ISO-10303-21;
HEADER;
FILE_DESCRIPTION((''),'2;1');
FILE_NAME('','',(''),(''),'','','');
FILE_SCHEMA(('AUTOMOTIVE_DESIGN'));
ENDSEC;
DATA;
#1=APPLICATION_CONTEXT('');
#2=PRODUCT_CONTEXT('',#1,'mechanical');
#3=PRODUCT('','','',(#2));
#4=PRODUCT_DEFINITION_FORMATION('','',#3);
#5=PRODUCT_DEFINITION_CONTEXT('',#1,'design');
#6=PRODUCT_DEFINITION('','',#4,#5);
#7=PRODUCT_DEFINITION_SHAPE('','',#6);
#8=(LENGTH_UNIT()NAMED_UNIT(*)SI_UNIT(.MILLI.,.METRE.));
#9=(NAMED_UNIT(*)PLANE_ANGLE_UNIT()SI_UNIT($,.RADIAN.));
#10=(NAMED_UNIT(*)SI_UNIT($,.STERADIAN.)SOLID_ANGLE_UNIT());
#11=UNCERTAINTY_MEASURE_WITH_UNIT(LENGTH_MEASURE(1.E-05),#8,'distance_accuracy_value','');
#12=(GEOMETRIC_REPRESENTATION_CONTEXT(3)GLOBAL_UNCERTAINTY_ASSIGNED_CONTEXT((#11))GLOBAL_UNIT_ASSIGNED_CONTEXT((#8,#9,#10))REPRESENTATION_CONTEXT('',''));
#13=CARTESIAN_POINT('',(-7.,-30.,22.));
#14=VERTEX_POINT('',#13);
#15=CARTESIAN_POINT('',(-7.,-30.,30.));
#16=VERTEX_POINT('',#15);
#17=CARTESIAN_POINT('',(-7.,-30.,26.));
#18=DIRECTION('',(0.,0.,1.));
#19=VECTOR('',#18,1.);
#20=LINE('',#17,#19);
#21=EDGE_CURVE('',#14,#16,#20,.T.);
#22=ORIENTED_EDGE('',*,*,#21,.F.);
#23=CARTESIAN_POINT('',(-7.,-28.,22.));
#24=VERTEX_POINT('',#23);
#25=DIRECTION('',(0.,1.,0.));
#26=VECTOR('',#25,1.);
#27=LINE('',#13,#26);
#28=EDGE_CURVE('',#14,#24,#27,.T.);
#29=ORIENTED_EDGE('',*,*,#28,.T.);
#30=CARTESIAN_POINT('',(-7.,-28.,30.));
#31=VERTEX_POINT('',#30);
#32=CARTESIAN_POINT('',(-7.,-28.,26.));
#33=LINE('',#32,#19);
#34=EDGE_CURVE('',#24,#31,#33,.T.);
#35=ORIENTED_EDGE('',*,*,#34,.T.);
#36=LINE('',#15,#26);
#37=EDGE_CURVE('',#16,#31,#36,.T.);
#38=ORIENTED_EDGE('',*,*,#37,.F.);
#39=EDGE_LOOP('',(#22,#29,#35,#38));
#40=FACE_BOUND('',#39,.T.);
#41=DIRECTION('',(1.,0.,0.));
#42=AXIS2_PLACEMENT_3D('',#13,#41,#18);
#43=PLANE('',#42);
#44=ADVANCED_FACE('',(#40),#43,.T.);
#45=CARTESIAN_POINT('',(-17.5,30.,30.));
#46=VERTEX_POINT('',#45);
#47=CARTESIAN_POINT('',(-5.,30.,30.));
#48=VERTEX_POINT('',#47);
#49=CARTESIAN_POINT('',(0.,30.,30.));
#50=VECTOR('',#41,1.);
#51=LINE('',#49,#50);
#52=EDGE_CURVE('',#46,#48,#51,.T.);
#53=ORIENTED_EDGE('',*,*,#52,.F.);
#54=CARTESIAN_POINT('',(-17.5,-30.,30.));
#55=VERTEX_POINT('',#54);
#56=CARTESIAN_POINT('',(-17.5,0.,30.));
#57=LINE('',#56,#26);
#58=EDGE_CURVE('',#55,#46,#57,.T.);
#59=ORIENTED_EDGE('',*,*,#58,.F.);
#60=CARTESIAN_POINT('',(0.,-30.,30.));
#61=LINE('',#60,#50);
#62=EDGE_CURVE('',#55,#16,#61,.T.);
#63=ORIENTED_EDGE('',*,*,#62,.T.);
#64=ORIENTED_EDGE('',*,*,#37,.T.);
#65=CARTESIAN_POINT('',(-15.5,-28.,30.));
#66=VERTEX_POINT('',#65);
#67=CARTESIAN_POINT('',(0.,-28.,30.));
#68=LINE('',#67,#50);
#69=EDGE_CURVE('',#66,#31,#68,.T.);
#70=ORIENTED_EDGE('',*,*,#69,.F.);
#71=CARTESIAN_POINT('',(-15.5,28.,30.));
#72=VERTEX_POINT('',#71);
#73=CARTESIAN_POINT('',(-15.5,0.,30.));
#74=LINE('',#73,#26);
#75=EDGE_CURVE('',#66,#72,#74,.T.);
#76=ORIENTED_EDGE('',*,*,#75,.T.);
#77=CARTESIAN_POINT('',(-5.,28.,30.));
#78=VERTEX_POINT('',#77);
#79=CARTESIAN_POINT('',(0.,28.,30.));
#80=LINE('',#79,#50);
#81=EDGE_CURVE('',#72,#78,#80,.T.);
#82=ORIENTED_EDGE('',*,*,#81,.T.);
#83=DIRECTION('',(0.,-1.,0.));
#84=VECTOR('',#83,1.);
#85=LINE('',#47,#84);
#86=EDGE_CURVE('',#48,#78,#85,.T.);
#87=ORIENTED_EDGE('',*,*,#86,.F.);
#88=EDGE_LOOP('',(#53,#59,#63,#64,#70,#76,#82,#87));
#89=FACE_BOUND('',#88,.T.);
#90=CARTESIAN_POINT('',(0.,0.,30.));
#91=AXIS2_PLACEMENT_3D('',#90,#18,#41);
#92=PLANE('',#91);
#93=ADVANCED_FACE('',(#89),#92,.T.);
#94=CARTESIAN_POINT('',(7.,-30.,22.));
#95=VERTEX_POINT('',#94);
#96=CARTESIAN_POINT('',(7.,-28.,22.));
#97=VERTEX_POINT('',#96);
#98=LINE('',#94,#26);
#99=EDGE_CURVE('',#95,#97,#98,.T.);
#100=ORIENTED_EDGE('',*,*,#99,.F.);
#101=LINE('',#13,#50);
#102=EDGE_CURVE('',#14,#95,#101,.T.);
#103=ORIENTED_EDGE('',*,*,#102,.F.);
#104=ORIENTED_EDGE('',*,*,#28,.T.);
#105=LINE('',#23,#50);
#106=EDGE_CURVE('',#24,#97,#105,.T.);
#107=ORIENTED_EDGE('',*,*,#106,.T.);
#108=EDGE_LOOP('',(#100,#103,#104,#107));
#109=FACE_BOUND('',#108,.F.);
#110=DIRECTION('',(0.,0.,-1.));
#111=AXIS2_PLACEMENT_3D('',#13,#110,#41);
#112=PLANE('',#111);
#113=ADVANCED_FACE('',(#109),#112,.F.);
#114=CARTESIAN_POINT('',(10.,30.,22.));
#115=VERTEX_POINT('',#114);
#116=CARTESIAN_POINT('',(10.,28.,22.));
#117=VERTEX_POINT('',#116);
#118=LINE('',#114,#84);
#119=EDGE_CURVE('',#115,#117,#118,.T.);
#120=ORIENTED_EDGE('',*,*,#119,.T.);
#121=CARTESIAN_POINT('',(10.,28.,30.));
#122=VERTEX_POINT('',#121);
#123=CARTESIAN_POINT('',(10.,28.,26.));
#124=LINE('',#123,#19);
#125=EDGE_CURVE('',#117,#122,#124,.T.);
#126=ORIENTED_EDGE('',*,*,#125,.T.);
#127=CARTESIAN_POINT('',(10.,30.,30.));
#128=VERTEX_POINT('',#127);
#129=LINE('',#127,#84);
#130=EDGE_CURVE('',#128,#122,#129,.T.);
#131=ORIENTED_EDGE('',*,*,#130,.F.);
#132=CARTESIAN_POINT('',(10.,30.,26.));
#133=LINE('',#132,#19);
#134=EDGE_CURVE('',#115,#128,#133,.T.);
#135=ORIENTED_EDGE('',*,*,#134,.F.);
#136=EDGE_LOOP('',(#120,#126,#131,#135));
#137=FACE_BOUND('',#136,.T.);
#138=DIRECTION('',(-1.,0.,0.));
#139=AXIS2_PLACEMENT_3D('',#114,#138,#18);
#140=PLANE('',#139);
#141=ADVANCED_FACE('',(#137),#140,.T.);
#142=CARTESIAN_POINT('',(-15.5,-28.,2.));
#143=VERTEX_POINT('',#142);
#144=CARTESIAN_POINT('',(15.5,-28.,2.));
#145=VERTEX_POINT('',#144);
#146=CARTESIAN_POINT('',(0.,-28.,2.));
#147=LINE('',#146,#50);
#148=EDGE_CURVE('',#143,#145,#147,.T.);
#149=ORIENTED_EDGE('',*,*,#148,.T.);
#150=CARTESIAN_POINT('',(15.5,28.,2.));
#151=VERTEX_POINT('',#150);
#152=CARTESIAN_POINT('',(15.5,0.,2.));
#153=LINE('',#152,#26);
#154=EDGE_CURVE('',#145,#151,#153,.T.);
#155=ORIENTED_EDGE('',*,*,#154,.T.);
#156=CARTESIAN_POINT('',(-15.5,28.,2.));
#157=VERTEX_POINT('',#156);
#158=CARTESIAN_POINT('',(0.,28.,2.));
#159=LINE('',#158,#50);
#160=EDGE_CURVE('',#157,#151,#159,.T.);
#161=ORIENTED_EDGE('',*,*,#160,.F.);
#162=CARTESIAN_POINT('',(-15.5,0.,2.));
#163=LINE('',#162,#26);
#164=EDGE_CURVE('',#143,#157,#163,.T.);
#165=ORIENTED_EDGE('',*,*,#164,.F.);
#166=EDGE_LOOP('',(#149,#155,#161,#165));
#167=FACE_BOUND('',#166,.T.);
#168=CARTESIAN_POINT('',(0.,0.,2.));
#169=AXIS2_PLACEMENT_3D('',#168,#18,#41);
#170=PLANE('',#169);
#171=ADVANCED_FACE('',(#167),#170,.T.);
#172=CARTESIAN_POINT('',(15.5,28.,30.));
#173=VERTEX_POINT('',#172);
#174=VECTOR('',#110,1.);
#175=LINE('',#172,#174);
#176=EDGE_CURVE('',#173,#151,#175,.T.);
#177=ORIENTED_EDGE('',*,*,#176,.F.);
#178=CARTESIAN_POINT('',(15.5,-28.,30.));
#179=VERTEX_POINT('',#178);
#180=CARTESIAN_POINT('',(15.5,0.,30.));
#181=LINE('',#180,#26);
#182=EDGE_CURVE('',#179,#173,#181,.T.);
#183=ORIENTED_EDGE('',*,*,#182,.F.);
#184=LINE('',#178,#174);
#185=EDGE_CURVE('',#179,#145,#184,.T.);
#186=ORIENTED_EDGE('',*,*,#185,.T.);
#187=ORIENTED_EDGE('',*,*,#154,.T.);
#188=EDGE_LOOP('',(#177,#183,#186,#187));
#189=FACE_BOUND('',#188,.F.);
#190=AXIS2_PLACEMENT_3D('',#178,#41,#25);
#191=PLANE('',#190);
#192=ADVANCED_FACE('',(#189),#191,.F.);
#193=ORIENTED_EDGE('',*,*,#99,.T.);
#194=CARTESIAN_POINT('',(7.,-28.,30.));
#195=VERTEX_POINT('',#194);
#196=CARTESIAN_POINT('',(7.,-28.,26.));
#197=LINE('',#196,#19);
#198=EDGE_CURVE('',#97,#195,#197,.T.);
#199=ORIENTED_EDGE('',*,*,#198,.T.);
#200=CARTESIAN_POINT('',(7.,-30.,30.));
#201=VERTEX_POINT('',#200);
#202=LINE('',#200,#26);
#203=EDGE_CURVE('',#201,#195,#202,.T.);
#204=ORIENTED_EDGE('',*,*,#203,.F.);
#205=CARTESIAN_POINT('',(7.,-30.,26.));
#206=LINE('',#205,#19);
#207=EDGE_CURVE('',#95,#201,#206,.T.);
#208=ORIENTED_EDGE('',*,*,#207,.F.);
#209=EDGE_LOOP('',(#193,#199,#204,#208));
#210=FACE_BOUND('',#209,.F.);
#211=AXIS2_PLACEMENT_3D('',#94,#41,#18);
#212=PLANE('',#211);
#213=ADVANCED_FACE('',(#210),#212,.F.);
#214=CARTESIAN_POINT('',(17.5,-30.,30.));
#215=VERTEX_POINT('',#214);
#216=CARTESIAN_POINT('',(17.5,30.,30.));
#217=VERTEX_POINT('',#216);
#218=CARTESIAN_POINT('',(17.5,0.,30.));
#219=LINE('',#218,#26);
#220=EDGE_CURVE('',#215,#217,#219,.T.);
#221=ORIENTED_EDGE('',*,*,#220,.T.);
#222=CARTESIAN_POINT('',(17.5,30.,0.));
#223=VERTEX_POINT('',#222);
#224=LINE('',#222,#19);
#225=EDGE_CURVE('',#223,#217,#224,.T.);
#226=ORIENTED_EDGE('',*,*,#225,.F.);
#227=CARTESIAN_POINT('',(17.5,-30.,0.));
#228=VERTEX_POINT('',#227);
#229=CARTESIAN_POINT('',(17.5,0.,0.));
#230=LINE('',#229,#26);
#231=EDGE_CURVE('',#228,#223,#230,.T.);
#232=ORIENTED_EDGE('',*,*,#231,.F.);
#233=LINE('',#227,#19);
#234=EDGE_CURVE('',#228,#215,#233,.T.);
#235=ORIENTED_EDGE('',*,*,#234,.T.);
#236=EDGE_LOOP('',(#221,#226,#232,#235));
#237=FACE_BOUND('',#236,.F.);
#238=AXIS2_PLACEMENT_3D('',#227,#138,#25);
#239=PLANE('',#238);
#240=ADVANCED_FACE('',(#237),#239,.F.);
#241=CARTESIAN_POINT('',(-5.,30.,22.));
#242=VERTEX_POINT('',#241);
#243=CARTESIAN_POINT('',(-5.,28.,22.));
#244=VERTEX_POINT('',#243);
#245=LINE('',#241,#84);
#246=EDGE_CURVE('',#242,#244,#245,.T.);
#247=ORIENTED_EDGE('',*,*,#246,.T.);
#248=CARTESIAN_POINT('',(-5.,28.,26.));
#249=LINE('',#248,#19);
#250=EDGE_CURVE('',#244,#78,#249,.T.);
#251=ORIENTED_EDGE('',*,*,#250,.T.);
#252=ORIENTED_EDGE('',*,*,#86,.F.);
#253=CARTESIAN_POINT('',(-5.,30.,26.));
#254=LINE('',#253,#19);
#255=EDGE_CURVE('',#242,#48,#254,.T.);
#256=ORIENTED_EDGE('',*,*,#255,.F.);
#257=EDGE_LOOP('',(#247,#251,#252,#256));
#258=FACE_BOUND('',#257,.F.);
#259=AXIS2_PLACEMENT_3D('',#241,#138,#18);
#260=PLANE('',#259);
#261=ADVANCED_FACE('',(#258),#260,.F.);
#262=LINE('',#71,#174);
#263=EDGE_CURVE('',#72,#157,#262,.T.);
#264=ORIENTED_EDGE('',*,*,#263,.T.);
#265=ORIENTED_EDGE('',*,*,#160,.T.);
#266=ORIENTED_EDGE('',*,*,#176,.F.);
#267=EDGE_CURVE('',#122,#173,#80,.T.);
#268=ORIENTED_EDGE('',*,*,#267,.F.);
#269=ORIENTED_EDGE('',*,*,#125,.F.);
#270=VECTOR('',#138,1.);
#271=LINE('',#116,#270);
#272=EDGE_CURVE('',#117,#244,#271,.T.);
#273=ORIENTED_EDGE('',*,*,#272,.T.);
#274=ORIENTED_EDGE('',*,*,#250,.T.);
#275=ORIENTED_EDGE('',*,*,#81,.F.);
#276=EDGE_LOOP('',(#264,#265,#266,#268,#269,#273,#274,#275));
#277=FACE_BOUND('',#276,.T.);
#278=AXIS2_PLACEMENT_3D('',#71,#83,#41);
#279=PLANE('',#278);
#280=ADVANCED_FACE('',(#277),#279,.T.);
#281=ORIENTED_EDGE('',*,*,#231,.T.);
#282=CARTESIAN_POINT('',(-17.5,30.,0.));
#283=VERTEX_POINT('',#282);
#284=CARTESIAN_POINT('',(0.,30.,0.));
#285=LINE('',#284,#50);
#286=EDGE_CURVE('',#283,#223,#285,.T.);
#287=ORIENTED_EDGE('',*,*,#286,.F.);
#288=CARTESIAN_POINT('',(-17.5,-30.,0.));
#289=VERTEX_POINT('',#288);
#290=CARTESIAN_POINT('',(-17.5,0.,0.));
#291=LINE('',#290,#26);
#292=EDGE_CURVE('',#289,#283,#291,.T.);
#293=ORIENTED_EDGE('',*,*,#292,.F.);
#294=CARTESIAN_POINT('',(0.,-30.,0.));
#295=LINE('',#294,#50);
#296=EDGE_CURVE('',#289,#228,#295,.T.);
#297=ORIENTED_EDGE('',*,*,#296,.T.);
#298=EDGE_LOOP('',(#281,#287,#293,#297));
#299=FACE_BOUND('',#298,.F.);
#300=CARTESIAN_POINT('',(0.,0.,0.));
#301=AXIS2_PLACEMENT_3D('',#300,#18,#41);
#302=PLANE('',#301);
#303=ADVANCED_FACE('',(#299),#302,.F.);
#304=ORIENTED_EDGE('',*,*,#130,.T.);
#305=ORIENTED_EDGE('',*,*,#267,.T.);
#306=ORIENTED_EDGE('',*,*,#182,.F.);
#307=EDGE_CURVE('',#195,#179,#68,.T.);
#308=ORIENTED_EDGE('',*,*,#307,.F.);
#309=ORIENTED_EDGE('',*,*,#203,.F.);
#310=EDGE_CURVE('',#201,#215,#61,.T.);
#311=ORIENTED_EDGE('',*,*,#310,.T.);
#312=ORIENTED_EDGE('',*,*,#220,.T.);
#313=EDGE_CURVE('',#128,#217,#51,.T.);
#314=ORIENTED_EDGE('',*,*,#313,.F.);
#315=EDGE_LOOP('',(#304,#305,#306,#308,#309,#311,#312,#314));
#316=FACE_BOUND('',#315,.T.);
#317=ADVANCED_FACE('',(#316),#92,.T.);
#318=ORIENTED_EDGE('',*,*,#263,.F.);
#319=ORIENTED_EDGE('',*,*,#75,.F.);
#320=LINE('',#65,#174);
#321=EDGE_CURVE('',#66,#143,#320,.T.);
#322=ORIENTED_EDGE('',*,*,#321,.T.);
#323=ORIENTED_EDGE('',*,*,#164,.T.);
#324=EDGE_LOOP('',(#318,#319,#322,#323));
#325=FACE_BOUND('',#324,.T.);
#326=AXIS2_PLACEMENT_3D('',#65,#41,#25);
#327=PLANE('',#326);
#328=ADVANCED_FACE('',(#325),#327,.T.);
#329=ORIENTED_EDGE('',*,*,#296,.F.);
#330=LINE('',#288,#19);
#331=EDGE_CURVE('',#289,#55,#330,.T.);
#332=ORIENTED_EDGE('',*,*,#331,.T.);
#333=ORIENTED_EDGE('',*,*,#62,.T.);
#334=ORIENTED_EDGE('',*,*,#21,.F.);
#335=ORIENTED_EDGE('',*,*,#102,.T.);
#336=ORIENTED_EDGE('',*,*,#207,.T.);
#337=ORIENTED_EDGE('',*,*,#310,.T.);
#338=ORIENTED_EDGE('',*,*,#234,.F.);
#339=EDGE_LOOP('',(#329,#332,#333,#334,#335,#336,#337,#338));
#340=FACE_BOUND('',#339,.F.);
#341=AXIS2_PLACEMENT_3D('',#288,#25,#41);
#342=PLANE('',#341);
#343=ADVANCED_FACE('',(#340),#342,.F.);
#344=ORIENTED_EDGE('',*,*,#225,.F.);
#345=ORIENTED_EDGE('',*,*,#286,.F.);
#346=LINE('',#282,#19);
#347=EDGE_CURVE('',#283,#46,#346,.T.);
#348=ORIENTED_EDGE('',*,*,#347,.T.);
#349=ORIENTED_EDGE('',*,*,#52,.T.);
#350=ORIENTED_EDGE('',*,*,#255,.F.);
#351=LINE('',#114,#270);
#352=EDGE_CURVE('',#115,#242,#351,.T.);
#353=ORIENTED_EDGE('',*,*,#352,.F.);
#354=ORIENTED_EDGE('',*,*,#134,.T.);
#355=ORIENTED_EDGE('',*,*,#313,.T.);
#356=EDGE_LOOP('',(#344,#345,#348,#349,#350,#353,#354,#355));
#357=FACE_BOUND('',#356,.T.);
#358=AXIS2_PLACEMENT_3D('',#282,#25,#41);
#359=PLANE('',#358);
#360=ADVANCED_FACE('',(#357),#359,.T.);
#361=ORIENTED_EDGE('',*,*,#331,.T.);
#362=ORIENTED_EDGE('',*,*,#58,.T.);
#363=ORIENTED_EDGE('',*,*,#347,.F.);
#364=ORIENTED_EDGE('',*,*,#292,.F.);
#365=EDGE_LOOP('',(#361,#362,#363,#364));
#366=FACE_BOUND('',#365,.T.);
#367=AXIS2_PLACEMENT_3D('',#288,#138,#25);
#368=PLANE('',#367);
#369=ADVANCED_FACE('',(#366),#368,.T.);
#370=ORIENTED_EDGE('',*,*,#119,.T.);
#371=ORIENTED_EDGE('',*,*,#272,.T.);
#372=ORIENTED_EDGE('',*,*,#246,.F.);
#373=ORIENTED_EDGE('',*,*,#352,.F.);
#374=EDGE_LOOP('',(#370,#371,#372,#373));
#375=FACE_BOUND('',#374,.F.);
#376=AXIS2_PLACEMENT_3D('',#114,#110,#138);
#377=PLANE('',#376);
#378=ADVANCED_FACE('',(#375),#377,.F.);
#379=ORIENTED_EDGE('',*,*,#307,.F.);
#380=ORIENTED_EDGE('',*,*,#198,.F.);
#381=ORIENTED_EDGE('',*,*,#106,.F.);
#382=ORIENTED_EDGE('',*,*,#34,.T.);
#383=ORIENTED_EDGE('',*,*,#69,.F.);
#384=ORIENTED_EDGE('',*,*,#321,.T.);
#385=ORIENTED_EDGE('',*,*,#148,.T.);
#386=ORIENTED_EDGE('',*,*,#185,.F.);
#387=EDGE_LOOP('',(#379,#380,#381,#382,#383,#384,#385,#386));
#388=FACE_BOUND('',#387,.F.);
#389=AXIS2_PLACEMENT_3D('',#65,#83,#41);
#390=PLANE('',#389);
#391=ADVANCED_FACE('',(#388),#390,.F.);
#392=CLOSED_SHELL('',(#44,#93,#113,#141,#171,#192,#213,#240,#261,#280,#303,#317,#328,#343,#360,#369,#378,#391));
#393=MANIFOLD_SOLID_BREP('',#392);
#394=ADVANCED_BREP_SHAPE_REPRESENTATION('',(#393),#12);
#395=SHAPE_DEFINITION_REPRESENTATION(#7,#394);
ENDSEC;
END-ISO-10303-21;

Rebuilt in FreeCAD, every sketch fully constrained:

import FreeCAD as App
import Part
import Sketcher
from FreeCAD import Vector


def add_polygon(sketch, points):
    """Adds a closed chain of lines whose ends are joined by coincident constraints."""
    first, n = sketch.GeometryCount, len(points)
    for a, b in zip(points, points[1:] + points[:1]):
        sketch.addGeometry(Part.LineSegment(App.Vector(*a, 0), App.Vector(*b, 0)), False)
    for i in range(n):
        sketch.addConstraint(Sketcher.Constraint("Coincident", first + i, 2, first + (i + 1) % n, 1))

doc = App.newDocument("Part")
body = doc.addObject("PartDesign::Body", "Body")

sketch1 = body.newObject("Sketcher::SketchObject", "Sketch")
sketch1.AttachmentSupport = (doc.getObject("XY_Plane"), [""])
sketch1.MapMode = "FlatFace"
add_polygon(sketch1, [(-17.5, 30), (-17.5, -30), (17.5, -30), (17.5, 30)])
sketch1.addConstraint([
    Sketcher.Constraint("Vertical", 0),
    Sketcher.Constraint("Horizontal", 1),
    Sketcher.Constraint("Vertical", 2),
    Sketcher.Constraint("Horizontal", 3),
    Sketcher.Constraint("Symmetric", 0, 2, 2, 2, -1, 1),
    Sketcher.Constraint("DistanceX", 1, 1, 1, 2, 35.0),
    Sketcher.Constraint("DistanceY", 0, 2, 0, 1, 60.0),
])
pad1 = body.newObject("PartDesign::Pad", "Pad")
pad1.Profile = sketch1
pad1.Length = 30

sketch2 = body.newObject("Sketcher::SketchObject", "Sketch001")
sketch2.AttachmentSupport = (doc.getObject("XY_Plane"), [""])
sketch2.MapMode = "FlatFace"
sketch2.AttachmentOffset = App.Placement(Vector(0, 0, 30), App.Rotation())
add_polygon(sketch2, [(-15.5, 28), (-15.5, -28), (15.5, -28), (15.5, 28)])
sketch2.addConstraint([
    Sketcher.Constraint("Vertical", 0),
    Sketcher.Constraint("Horizontal", 1),
    Sketcher.Constraint("Vertical", 2),
    Sketcher.Constraint("Horizontal", 3),
    Sketcher.Constraint("Symmetric", 0, 2, 2, 2, -1, 1),
    Sketcher.Constraint("DistanceX", 1, 1, 1, 2, 31.0),
    Sketcher.Constraint("DistanceY", 0, 2, 0, 1, 56.0),
])
pocket1 = body.newObject("PartDesign::Pocket", "Pocket")
pocket1.Profile = sketch2
pocket1.Length = 28

sketch3 = body.newObject("Sketcher::SketchObject", "Sketch002")
sketch3.AttachmentSupport = (doc.getObject("XZ_Plane"), [""])
sketch3.MapMode = "FlatFace"
sketch3.AttachmentOffset = App.Placement(Vector(0, 0, -30), App.Rotation())
add_polygon(sketch3, [(-5, 22), (-5, 30), (10, 30), (10, 22)])
sketch3.addConstraint([
    Sketcher.Constraint("Vertical", 0),
    Sketcher.Constraint("Horizontal", 1),
    Sketcher.Constraint("Vertical", 2),
    Sketcher.Constraint("Horizontal", 3),
    Sketcher.Constraint("DistanceX", 1, 1, 1, 2, 15.0),
    Sketcher.Constraint("DistanceY", 0, 1, 0, 2, 8.0),
    Sketcher.Constraint("DistanceX", 0, 2, -1, 1, 5.0),
    Sketcher.Constraint("DistanceY", -1, 1, 0, 2, 30.0),
])
pocket2 = body.newObject("PartDesign::Pocket", "Pocket001")
pocket2.Profile = sketch3
pocket2.Length = 2
pocket2.Reversed = True

sketch4 = body.newObject("Sketcher::SketchObject", "Sketch003")
sketch4.AttachmentSupport = (doc.getObject("XZ_Plane"), [""])
sketch4.MapMode = "FlatFace"
sketch4.AttachmentOffset = App.Placement(Vector(0, 0, 30), App.Rotation())
add_polygon(sketch4, [(-7, 30), (-7, 22), (7, 22), (7, 30)])
sketch4.addConstraint([
    Sketcher.Constraint("Vertical", 0),
    Sketcher.Constraint("Horizontal", 1),
    Sketcher.Constraint("Vertical", 2),
    Sketcher.Constraint("Horizontal", 3),
    Sketcher.Constraint("DistanceX", 1, 1, 1, 2, 14.0),
    Sketcher.Constraint("DistanceY", 0, 2, 0, 1, 8.0),
    Sketcher.Constraint("DistanceX", 0, 2, -1, 1, 7.0),
    Sketcher.Constraint("DistanceY", -1, 1, 0, 2, 22.0),
])
pocket3 = body.newObject("PartDesign::Pocket", "Pocket002")
pocket3.Profile = sketch4
pocket3.Length = 2

doc.recompute()
